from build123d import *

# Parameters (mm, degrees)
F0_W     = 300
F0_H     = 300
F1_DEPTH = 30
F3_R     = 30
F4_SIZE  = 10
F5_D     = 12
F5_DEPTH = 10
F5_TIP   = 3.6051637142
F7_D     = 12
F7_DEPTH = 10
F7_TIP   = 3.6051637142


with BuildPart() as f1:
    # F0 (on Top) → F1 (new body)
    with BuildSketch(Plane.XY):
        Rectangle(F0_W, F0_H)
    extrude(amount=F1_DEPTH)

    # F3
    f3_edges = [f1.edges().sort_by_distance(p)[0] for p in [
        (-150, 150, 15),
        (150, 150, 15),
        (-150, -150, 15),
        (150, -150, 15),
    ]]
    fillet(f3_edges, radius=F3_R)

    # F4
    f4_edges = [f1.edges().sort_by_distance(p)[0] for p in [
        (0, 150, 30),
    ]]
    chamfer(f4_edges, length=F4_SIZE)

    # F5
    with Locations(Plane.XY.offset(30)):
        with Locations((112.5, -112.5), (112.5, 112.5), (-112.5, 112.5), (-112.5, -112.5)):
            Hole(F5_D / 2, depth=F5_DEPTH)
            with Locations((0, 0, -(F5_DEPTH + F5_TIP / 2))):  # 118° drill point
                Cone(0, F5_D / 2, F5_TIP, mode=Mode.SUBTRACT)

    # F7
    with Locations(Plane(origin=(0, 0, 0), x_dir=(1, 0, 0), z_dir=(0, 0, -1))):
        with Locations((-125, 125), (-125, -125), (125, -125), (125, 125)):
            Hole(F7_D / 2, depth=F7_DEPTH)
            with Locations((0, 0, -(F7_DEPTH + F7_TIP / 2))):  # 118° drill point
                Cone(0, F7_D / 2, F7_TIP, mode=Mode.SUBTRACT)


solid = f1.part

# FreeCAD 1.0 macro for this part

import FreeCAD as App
import Part
import Sketcher

V = App.Vector
Q = App.Units.Quantity


def edges_at(feature, points):
    """Names of the edges that pass closest to the given points."""
    edges = feature.Shape.Edges
    near = lambda p: min(range(len(edges)), key=lambda i: edges[i].distToShape(Part.Vertex(*p))[0])
    return sorted({f"Edge{near(p) + 1}" for p in points})


def add_polygon(sketch, points):
    """Adds a closed chain of lines whose ends are joined by coincident constraints."""
    first, n = sketch.GeometryCount, len(points)
    for a, b in zip(points, points[1:] + points[:1]):
        sketch.addGeometry(Part.LineSegment(App.Vector(*a, 0), App.Vector(*b, 0)), False)
    for i in range(n):
        sketch.addConstraint(Sketcher.Constraint("Coincident", first + i, 2, first + (i + 1) % n, 1))

doc = App.newDocument("Part")
params = doc.addObject("Spreadsheet::Sheet", "Params")
for row, (alias, value) in enumerate([
    ("sketch1_width", "300 mm"),
    ("pad1_length", "30 mm"),
    ("fillet_radius", "30 mm"),
    ("chamfer_size", "10 mm"),
    ("sketch2_diameter", "12 mm"),
    ("hole_diameter", "12 mm"),
    ("hole_depth", "10 mm"),
    ("sketch3_diameter", "12 mm"),
    ("hole2_diameter", "12 mm"),
    ("hole2_depth", "10 mm"),
], start=1):
    params.set(f"A{row}", alias)
    params.set(f"B{row}", "=" + value)
    params.setAlias(f"B{row}", alias)

body = doc.addObject("PartDesign::Body", "Body")

# Sketch on XY plane
sketch1 = body.newObject("Sketcher::SketchObject", "Sketch")
sketch1.AttachmentSupport = (doc.getObject("XY_Plane"), [""])
sketch1.MapMode = "FlatFace"
add_polygon(sketch1, [(-150, 150), (-150, -150), (150, -150), (150, 150)])  # lines 0-3
sketch1.addConstraint(Sketcher.Constraint("Vertical", 0))
sketch1.addConstraint(Sketcher.Constraint("Horizontal", 1))
sketch1.addConstraint(Sketcher.Constraint("Vertical", 2))
sketch1.addConstraint(Sketcher.Constraint("Horizontal", 3))
sketch1.addConstraint(Sketcher.Constraint("Symmetric", 0, 2, 2, 2, -1, 1))
sketch1.addConstraint(Sketcher.Constraint("Equal", 3, 0))
sketch1.addConstraint(Sketcher.Constraint("DistanceX", 1, 1, 1, 2, Q("300 mm")))
sketch1.setExpression("Constraints[10]", "Params.sketch1_width")
pad1 = body.newObject("PartDesign::Pad", "Pad")
pad1.Profile = sketch1
pad1.setExpression("Length", "Params.pad1_length")
doc.recompute()

fillet = body.newObject("PartDesign::Fillet", "Fillet")
fillet.Base = (pad1, edges_at(pad1, [
    (-150, 150, 15),
    (150, 150, 15),
    (-150, -150, 15),
    (150, -150, 15),
]))
fillet.setExpression("Radius", "Params.fillet_radius")
doc.recompute()

chamfer = body.newObject("PartDesign::Chamfer", "Chamfer")
chamfer.Base = (fillet, edges_at(fillet, [(0, 150, 30)]))
chamfer.setExpression("Size", "Params.chamfer_size")

# Sketch on XY plane
sketch2 = body.newObject("Sketcher::SketchObject", "Sketch001")
sketch2.AttachmentSupport = (doc.getObject("XY_Plane"), [""])
sketch2.MapMode = "FlatFace"
sketch2.AttachmentOffset = App.Placement(V(0, 0, 30), App.Rotation())
sketch2.addGeometry(Part.Circle(V(112, -112, 0), V(0, 0, 1), 6), False)
sketch2.addGeometry(Part.Circle(V(112, 112, 0), V(0, 0, 1), 6), False)
sketch2.addGeometry(Part.Circle(V(-112, 112, 0), V(0, 0, 1), 6), False)
sketch2.addGeometry(Part.Circle(V(-112, -112, 0), V(0, 0, 1), 6), False)
sketch2.addConstraint(Sketcher.Constraint("Equal", 0, 1))
sketch2.addConstraint(Sketcher.Constraint("Equal", 1, 2))
sketch2.addConstraint(Sketcher.Constraint("Equal", 2, 3))
sketch2.addConstraint(Sketcher.Constraint("Symmetric", 0, 3, 2, 3, -1, 1))
sketch2.addConstraint(Sketcher.Constraint("Symmetric", 1, 3, 3, 3, -1, 1))
sketch2.addConstraint(Sketcher.Constraint("Symmetric", 1, 3, 2, 3, -2))
sketch2.addConstraint(Sketcher.Constraint("Diameter", 0, Q("12 mm")))
sketch2.addConstraint(Sketcher.Constraint("DistanceY", 0, 3, 1, 3, Q("225 mm")))
sketch2.addConstraint(Sketcher.Constraint("DistanceX", 2, 3, 1, 3, Q("225 mm")))
sketch2.setExpression("Constraints[6]", "Params.sketch2_diameter")
doc.recompute()
hole = body.newObject("PartDesign::Hole", "Hole")
hole.Profile = sketch2
hole.ThreadType = "None"
hole.setExpression("Diameter", "Params.hole_diameter")
hole.DepthType = "Dimension"
hole.setExpression("Depth", "Params.hole_depth")
hole.DrillPoint = "Angled"
hole.DrillPointAngle = 118

# Sketch on XY plane
sketch3 = body.newObject("Sketcher::SketchObject", "Sketch002")
sketch3.AttachmentSupport = (doc.getObject("XY_Plane"), [""])
sketch3.MapMode = "FlatFace"
sketch3.addGeometry(Part.Circle(V(-125, -125, 0), V(0, 0, 1), 6), False)
sketch3.addGeometry(Part.Circle(V(-125, 125, 0), V(0, 0, 1), 6), False)
sketch3.addGeometry(Part.Circle(V(125, 125, 0), V(0, 0, 1), 6), False)
sketch3.addGeometry(Part.Circle(V(125, -125, 0), V(0, 0, 1), 6), False)
sketch3.addConstraint(Sketcher.Constraint("Equal", 0, 1))
sketch3.addConstraint(Sketcher.Constraint("Equal", 1, 2))
sketch3.addConstraint(Sketcher.Constraint("Equal", 2, 3))
sketch3.addConstraint(Sketcher.Constraint("Symmetric", 0, 3, 2, 3, -1, 1))
sketch3.addConstraint(Sketcher.Constraint("Symmetric", 1, 3, 3, 3, -1, 1))
sketch3.addConstraint(Sketcher.Constraint("Symmetric", 1, 3, 2, 3, -2))
sketch3.addConstraint(Sketcher.Constraint("Diameter", 0, Q("12 mm")))
sketch3.addConstraint(Sketcher.Constraint("DistanceX", 0, 3, -1, 1, Q("125 mm")))
sketch3.addConstraint(Sketcher.Constraint("DistanceY", 0, 3, -1, 1, Q("125 mm")))
sketch3.setExpression("Constraints[6]", "Params.sketch3_diameter")
doc.recompute()
hole2 = body.newObject("PartDesign::Hole", "Hole001")
hole2.Profile = sketch3
hole2.ThreadType = "None"
hole2.setExpression("Diameter", "Params.hole2_diameter")
hole2.DepthType = "Dimension"
hole2.setExpression("Depth", "Params.hole2_depth")
hole2.DrillPoint = "Angled"
hole2.DrillPointAngle = 118
hole2.Reversed = True

doc.recompute()
